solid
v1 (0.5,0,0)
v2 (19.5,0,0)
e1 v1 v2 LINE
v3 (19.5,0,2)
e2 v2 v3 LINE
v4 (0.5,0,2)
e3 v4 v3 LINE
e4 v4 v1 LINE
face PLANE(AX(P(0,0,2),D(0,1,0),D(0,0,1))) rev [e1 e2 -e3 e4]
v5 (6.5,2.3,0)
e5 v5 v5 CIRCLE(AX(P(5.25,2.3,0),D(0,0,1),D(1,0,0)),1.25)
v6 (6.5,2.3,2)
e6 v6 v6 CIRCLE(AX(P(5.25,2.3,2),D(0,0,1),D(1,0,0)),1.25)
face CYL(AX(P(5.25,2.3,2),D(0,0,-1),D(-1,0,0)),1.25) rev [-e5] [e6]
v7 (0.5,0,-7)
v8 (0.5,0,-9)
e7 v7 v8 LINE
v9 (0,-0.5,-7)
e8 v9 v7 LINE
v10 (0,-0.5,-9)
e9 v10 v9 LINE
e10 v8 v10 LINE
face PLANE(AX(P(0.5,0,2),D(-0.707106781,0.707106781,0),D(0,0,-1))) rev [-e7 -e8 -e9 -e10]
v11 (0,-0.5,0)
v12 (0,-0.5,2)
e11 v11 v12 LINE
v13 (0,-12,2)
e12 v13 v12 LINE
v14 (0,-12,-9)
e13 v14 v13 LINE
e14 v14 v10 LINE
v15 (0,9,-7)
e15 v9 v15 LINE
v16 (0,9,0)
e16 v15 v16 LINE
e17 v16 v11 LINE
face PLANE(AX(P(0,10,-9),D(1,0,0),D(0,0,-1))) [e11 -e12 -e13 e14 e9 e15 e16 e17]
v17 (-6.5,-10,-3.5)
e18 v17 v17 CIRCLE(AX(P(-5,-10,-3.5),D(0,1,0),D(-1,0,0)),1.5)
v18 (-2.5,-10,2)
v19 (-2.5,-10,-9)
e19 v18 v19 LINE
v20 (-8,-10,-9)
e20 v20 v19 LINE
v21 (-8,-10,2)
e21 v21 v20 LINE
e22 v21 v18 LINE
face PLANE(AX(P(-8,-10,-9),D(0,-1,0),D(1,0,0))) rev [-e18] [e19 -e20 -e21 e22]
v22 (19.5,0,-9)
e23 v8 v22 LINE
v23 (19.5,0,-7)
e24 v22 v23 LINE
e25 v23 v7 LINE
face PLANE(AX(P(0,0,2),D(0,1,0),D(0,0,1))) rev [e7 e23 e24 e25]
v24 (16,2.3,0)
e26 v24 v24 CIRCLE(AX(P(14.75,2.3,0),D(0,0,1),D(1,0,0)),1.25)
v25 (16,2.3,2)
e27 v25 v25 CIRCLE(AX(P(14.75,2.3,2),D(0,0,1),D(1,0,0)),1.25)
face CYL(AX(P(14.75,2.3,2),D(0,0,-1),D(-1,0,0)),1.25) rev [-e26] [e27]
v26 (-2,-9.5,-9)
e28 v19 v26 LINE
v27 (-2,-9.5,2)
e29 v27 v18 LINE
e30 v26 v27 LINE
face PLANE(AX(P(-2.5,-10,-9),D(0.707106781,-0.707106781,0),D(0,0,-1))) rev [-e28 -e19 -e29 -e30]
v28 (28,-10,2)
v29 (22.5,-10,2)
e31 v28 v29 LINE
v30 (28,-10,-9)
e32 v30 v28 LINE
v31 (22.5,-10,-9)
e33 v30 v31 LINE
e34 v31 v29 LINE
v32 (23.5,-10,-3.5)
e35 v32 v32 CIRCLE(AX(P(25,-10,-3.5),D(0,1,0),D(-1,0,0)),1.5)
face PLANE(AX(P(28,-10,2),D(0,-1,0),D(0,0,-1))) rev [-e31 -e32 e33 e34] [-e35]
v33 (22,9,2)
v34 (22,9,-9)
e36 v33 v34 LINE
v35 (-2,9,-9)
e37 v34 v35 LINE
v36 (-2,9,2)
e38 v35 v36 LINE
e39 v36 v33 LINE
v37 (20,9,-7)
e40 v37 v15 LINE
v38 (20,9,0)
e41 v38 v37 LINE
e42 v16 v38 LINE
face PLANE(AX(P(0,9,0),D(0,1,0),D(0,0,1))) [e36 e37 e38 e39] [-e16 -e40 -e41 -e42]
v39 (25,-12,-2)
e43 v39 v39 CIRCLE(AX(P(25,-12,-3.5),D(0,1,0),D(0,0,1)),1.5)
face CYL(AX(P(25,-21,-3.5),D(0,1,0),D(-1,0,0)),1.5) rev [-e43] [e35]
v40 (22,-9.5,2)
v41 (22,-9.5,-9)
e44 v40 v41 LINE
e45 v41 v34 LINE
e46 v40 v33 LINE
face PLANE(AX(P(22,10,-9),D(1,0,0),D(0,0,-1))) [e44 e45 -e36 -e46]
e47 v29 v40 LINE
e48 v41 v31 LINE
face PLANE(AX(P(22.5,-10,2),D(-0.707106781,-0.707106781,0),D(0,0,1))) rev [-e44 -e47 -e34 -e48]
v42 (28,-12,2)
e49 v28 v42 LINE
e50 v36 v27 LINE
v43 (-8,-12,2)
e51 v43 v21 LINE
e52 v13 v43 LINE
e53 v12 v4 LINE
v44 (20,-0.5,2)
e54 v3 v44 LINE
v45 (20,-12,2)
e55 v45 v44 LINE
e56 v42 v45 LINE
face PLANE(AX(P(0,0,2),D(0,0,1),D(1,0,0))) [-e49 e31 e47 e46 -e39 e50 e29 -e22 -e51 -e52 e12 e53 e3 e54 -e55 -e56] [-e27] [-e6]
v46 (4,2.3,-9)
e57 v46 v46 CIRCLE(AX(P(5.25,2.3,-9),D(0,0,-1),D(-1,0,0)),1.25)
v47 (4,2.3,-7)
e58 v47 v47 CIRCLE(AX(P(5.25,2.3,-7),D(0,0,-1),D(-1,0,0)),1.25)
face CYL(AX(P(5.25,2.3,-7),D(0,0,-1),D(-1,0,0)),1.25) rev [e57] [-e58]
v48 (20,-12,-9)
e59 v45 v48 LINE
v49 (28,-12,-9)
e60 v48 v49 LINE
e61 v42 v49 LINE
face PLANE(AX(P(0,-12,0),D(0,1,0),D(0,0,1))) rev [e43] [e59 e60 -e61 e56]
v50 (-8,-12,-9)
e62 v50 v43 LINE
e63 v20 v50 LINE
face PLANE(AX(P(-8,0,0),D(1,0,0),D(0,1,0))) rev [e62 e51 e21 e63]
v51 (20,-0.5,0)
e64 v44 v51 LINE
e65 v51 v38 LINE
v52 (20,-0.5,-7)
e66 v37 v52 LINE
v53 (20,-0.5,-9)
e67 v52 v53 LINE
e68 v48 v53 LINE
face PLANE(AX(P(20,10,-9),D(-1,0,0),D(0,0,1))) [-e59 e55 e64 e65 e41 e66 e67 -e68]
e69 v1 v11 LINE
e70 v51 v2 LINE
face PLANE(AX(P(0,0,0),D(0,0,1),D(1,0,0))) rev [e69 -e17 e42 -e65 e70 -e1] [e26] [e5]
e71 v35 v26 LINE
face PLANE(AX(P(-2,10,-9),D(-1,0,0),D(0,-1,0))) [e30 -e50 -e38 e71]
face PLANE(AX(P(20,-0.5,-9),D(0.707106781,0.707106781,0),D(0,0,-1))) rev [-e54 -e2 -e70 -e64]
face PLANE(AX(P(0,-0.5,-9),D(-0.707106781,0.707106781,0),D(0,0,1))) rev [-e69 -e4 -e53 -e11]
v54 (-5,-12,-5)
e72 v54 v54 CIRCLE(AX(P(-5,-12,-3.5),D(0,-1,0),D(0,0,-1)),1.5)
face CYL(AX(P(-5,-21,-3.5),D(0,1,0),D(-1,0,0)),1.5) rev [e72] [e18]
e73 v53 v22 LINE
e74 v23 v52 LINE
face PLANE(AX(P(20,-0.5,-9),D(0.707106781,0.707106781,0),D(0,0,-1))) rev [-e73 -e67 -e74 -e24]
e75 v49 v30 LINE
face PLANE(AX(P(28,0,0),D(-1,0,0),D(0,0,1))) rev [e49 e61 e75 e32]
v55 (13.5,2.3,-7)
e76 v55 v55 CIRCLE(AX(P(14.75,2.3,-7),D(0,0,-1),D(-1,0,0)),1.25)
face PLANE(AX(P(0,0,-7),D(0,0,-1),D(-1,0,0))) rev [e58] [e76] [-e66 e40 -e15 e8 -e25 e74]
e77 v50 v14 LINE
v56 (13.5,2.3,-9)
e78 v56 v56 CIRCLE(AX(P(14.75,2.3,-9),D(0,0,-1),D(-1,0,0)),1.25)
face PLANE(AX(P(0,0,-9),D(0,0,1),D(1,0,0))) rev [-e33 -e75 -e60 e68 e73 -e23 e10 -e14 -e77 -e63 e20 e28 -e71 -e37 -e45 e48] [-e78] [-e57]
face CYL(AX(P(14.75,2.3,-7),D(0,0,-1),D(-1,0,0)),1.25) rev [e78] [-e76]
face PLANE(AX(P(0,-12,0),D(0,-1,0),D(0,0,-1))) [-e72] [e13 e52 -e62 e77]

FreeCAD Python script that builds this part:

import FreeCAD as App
import Part
import Sketcher

V = App.Vector


def edges_at(feature, points):
    """Names of the edges that pass closest to the given points."""
    edges = feature.Shape.Edges
    near = lambda p: min(range(len(edges)), key=lambda i: edges[i].distToShape(Part.Vertex(*p))[0])
    return sorted({f"Edge{near(p) + 1}" for p in points})

doc = App.newDocument("Part")
params = doc.addObject("Spreadsheet::Sheet", "Params")
for row, (alias, value) in enumerate([
    ("sketch1_diameter", "2.5 mm"),
    ("sketch1_width", "20 mm"),
    ("sketch1_height", "10 mm"),
    ("pad1_length", "2 mm"),
    ("sketch2_width", "2 mm"),
    ("sketch2_height", "10 mm"),
    ("pad2_length", "11 mm"),
    ("sketch3_diameter", "2.5 mm"),
    ("sketch3_width", "20 mm"),
    ("sketch3_height", "10 mm"),
    ("pad3_length", "2 mm"),
    ("sketch4_width", "2 mm"),
    ("sketch4_height", "11 mm"),
    ("pad4_length", "12 mm"),
    ("sketch5_width", "2 mm"),
    ("sketch5_height", "11 mm"),
    ("pad5_length", "6 mm"),
    ("sketch6_width", "2 mm"),
    ("sketch6_height", "11 mm"),
    ("pad6_length", "6 mm"),
    ("sketch7_width", "24 mm"),
    ("sketch7_width2", "20 mm"),
    ("sketch7_height", "11 mm"),
    ("sketch7_height2", "7 mm"),
    ("pocket1_length", "1 mm"),
    ("sketch8_diameter", "3 mm"),
    ("pocket2_length", "11 mm"),
    ("chamfer_size", "0.5 mm"),
], start=1):
    params.set(f"A{row}", alias)
    params.set(f"B{row}", "=" + value)
    params.setAlias(f"B{row}", alias)

body = doc.addObject("PartDesign::Body", "Body")

sketch1 = body.newObject("Sketcher::SketchObject", "Sketch")
sketch1.AttachmentSupport = (doc.getObject("XY_Plane"), [""])
sketch1.MapMode = "FlatFace"
sketch1.addGeometry([
    Part.LineSegment(V(0, 10, 0), V(0, 0, 0)),
    Part.LineSegment(V(0, 0, 0), V(20, 0, 0)),
    Part.LineSegment(V(20, 0, 0), V(20, 10, 0)),
    Part.LineSegment(V(20, 10, 0), V(0, 10, 0)),
    Part.Circle(V(5.2, 2.3, 0), V(0, 0, 1), 1.2),
    Part.Circle(V(14.8, 2.3, 0), V(0, 0, 1), 1.2),
], False)
sketch1.addConstraint([
    Sketcher.Constraint("Coincident", 0, 2, 1, 1),
    Sketcher.Constraint("Coincident", 1, 2, 2, 1),
    Sketcher.Constraint("Coincident", 2, 2, 3, 1),
    Sketcher.Constraint("Coincident", 3, 2, 0, 1),
    Sketcher.Constraint("Vertical", 0),
    Sketcher.Constraint("Horizontal", 1),
    Sketcher.Constraint("Vertical", 2),
    Sketcher.Constraint("Horizontal", 3),
    Sketcher.Constraint("Coincident", 0, 2, -1, 1),
    Sketcher.Constraint("Equal", 4, 5),
    Sketcher.Constraint("Horizontal", 4, 3, 5, 3),
    Sketcher.Constraint("Diameter", 4, 2.5),
    Sketcher.Constraint("DistanceX", 1, 1, 1, 2, 20.0),
    Sketcher.Constraint("DistanceY", 0, 2, 0, 1, 10.0),
    Sketcher.Constraint("DistanceY", -1, 1, 4, 3, 2.3),
    Sketcher.Constraint("DistanceX", 4, 3, 5, 3, 9.5),
    Sketcher.Constraint("DistanceX", -1, 1, 4, 3, 5.25),
])
sketch1.setExpression("Constraints[11]", "Params.sketch1_diameter")
sketch1.setExpression("Constraints[12]", "Params.sketch1_width")
sketch1.setExpression("Constraints[13]", "Params.sketch1_height")
pad1 = body.newObject("PartDesign::Pad", "Pad")
pad1.Profile = sketch1
pad1.setExpression("Length", "Params.pad1_length")

sketch2 = body.newObject("Sketcher::SketchObject", "Sketch001")
sketch2.AttachmentSupport = (doc.getObject("XY_Plane"), [""])
sketch2.MapMode = "FlatFace"
sketch2.AttachmentOffset = App.Placement(V(0, 0, 2), App.Rotation())
sketch2.addGeometry([
    Part.LineSegment(V(-2, 10, 0), V(-2, 0, 0)),
    Part.LineSegment(V(-2, 0, 0), V(0, 0, 0)),
    Part.LineSegment(V(0, 0, 0), V(0, 10, 0)),
    Part.LineSegment(V(0, 10, 0), V(-2, 10, 0)),
    Part.LineSegment(V(20, 10, 0), V(20, 0, 0)),
    Part.LineSegment(V(20, 0, 0), V(22, 0, 0)),
    Part.LineSegment(V(22, 0, 0), V(22, 10, 0)),
    Part.LineSegment(V(22, 10, 0), V(20, 10, 0)),
], False)
sketch2.addConstraint([
    Sketcher.Constraint("Coincident", 0, 2, 1, 1),
    Sketcher.Constraint("Coincident", 1, 2, 2, 1),
    Sketcher.Constraint("Coincident", 2, 2, 3, 1),
    Sketcher.Constraint("Coincident", 3, 2, 0, 1),
    Sketcher.Constraint("Coincident", 4, 2, 5, 1),
    Sketcher.Constraint("Coincident", 5, 2, 6, 1),
    Sketcher.Constraint("Coincident", 6, 2, 7, 1),
    Sketcher.Constraint("Coincident", 7, 2, 4, 1),
    Sketcher.Constraint("Vertical", 0),
    Sketcher.Constraint("Horizontal", 1),
    Sketcher.Constraint("Vertical", 2),
    Sketcher.Constraint("Horizontal", 3),
    Sketcher.Constraint("Vertical", 4),
    Sketcher.Constraint("Horizontal", 5),
    Sketcher.Constraint("Vertical", 6),
    Sketcher.Constraint("Horizontal", 7),
    Sketcher.Constraint("Coincident", 1, 2, -1, 1),
    Sketcher.Constraint("PointOnObject", 4, 2, -1),
    Sketcher.Constraint("Horizontal", 3, 2, 6, 2),
    Sketcher.Constraint("Equal", 3, 5),
    Sketcher.Constraint("DistanceX", 1, 1, 1, 2, 2.0),
    Sketcher.Constraint("DistanceY", 0, 2, 0, 1, 10.0),
    Sketcher.Constraint("DistanceX", -1, 1, 4, 2, 20.0),
])
sketch2.setExpression("Constraints[20]", "Params.sketch2_width")
sketch2.setExpression("Constraints[21]", "Params.sketch2_height")
pad2 = body.newObject("PartDesign::Pad", "Pad001")
pad2.Profile = sketch2
pad2.setExpression("Length", "Params.pad2_length")
pad2.Reversed = True
body2 = doc.addObject("PartDesign::Body", "Body001")

sketch3 = body2.newObject("Sketcher::SketchObject", "Sketch002")
sketch3.AttachmentSupport = (doc.getObject("XY_Plane001"), [""])
sketch3.MapMode = "FlatFace"
sketch3.AttachmentOffset = App.Placement(V(0, 0, -9), App.Rotation())
sketch3.addGeometry([
    Part.LineSegment(V(20, 10, 0), V(20, 0, 0)),
    Part.LineSegment(V(20, 0, 0), V(0, 0, 0)),
    Part.LineSegment(V(0, 0, 0), V(0, 10, 0)),
    Part.LineSegment(V(0, 10, 0), V(20, 10, 0)),
    Part.Circle(V(14.8, 2.3, 0), V(0, 0, 1), 1.2),
    Part.Circle(V(5.2, 2.3, 0), V(0, 0, 1), 1.2),
], False)
sketch3.addConstraint([
    Sketcher.Constraint("Coincident", 0, 2, 1, 1),
    Sketcher.Constraint("Coincident", 1, 2, 2, 1),
    Sketcher.Constraint("Coincident", 2, 2, 3, 1),
    Sketcher.Constraint("Coincident", 3, 2, 0, 1),
    Sketcher.Constraint("Vertical", 0),
    Sketcher.Constraint("Horizontal", 1),
    Sketcher.Constraint("Vertical", 2),
    Sketcher.Constraint("Horizontal", 3),
    Sketcher.Constraint("Coincident", 1, 2, -1, 1),
    Sketcher.Constraint("Equal", 4, 5),
    Sketcher.Constraint("Horizontal", 4, 3, 5, 3),
    Sketcher.Constraint("Diameter", 4, 2.5),
    Sketcher.Constraint("DistanceX", 1, 2, 1, 1, 20.0),
    Sketcher.Constraint("DistanceY", 0, 2, 0, 1, 10.0),
    Sketcher.Constraint("DistanceY", -1, 1, 4, 3, 2.3),
    Sketcher.Constraint("DistanceX", 5, 3, 4, 3, 9.5),
    Sketcher.Constraint("DistanceX", -1, 1, 4, 3, 14.75),
])
sketch3.setExpression("Constraints[11]", "Params.sketch3_diameter")
sketch3.setExpression("Constraints[12]", "Params.sketch3_width")
sketch3.setExpression("Constraints[13]", "Params.sketch3_height")
pad3 = body2.newObject("PartDesign::Pad", "Pad002")
pad3.Profile = sketch3
pad3.setExpression("Length", "Params.pad3_length")
doc.recompute()

boolean = body.newObject("PartDesign::Boolean", "Boolean")
boolean.Type = "Fuse"
boolean.addObjects([body2])

sketch4 = body.newObject("Sketcher::SketchObject", "Sketch003")
sketch4.AttachmentSupport = (doc.getObject("XZ_Plane"), [""])
sketch4.MapMode = "FlatFace"
sketch4.addGeometry([
    Part.LineSegment(V(-2, 2, 0), V(-2, -9, 0)),
    Part.LineSegment(V(-2, -9, 0), V(0, -9, 0)),
    Part.LineSegment(V(0, -9, 0), V(0, 2, 0)),
    Part.LineSegment(V(0, 2, 0), V(-2, 2, 0)),
    Part.LineSegment(V(20, 2, 0), V(20, -9, 0)),
    Part.LineSegment(V(20, -9, 0), V(22, -9, 0)),
    Part.LineSegment(V(22, -9, 0), V(22, 2, 0)),
    Part.LineSegment(V(22, 2, 0), V(20, 2, 0)),
], False)
sketch4.addConstraint([
    Sketcher.Constraint("Coincident", 0, 2, 1, 1),
    Sketcher.Constraint("Coincident", 1, 2, 2, 1),
    Sketcher.Constraint("Coincident", 2, 2, 3, 1),
    Sketcher.Constraint("Coincident", 3, 2, 0, 1),
    Sketcher.Constraint("Coincident", 4, 2, 5, 1),
    Sketcher.Constraint("Coincident", 5, 2, 6, 1),
    Sketcher.Constraint("Coincident", 6, 2, 7, 1),
    Sketcher.Constraint("Coincident", 7, 2, 4, 1),
    Sketcher.Constraint("Vertical", 0),
    Sketcher.Constraint("Horizontal", 1),
    Sketcher.Constraint("Vertical", 2),
    Sketcher.Constraint("Horizontal", 3),
    Sketcher.Constraint("Vertical", 4),
    Sketcher.Constraint("Horizontal", 5),
    Sketcher.Constraint("Vertical", 6),
    Sketcher.Constraint("Horizontal", 7),
    Sketcher.Constraint("PointOnObject", 1, 2, -2),
    Sketcher.Constraint("Horizontal", 1, 2, 4, 2),
    Sketcher.Constraint("Horizontal", 3, 2, 6, 2),
    Sketcher.Constraint("Equal", 3, 5),
    Sketcher.Constraint("DistanceX", 1, 1, 1, 2, 2.0),
    Sketcher.Constraint("DistanceY", 0, 2, 0, 1, 11.0),
    Sketcher.Constraint("DistanceY", 0, 2, -1, 1, 9.0),
    Sketcher.Constraint("DistanceX", -1, 1, 4, 2, 20.0),
])
sketch4.setExpression("Constraints[20]", "Params.sketch4_width")
sketch4.setExpression("Constraints[21]", "Params.sketch4_height")
pad4 = body.newObject("PartDesign::Pad", "Pad003")
pad4.Profile = sketch4
pad4.setExpression("Length", "Params.pad4_length")

sketch5 = body.newObject("Sketcher::SketchObject", "Sketch004")
sketch5.AttachmentSupport = (doc.getObject("YZ_Plane"), [""])
sketch5.MapMode = "FlatFace"
sketch5.AttachmentOffset = App.Placement(V(0, 0, 22), App.Rotation())
sketch5.addGeometry([
    Part.LineSegment(V(-10, 2, 0), V(-12, 2, 0)),
    Part.LineSegment(V(-12, 2, 0), V(-12, -9, 0)),
    Part.LineSegment(V(-12, -9, 0), V(-10, -9, 0)),
    Part.LineSegment(V(-10, -9, 0), V(-10, 2, 0)),
], False)
sketch5.addConstraint([
    Sketcher.Constraint("Coincident", 0, 2, 1, 1),
    Sketcher.Constraint("Coincident", 1, 2, 2, 1),
    Sketcher.Constraint("Coincident", 2, 2, 3, 1),
    Sketcher.Constraint("Coincident", 3, 2, 0, 1),
    Sketcher.Constraint("Horizontal", 0),
    Sketcher.Constraint("Vertical", 1),
    Sketcher.Constraint("Horizontal", 2),
    Sketcher.Constraint("Vertical", 3),
    Sketcher.Constraint("DistanceX", 0, 2, 0, 1, 2.0),
    Sketcher.Constraint("DistanceY", 1, 2, 1, 1, 11.0),
    Sketcher.Constraint("DistanceX", 0, 2, -1, 1, 12.0),
    Sketcher.Constraint("DistanceY", -1, 1, 0, 2, 2.0),
])
sketch5.setExpression("Constraints[8]", "Params.sketch5_width")
sketch5.setExpression("Constraints[9]", "Params.sketch5_height")
pad5 = body.newObject("PartDesign::Pad", "Pad004")
pad5.Profile = sketch5
pad5.setExpression("Length", "Params.pad5_length")

sketch6 = body.newObject("Sketcher::SketchObject", "Sketch005")
sketch6.AttachmentSupport = (doc.getObject("YZ_Plane"), [""])
sketch6.MapMode = "FlatFace"
sketch6.AttachmentOffset = App.Placement(V(0, 0, -2), App.Rotation())
sketch6.addGeometry([
    Part.LineSegment(V(-10, -9, 0), V(-12, -9, 0)),
    Part.LineSegment(V(-12, -9, 0), V(-12, 2, 0)),
    Part.LineSegment(V(-12, 2, 0), V(-10, 2, 0)),
    Part.LineSegment(V(-10, 2, 0), V(-10, -9, 0)),
], False)
sketch6.addConstraint([
    Sketcher.Constraint("Coincident", 0, 2, 1, 1),
    Sketcher.Constraint("Coincident", 1, 2, 2, 1),
    Sketcher.Constraint("Coincident", 2, 2, 3, 1),
    Sketcher.Constraint("Coincident", 3, 2, 0, 1),
    Sketcher.Constraint("Horizontal", 0),
    Sketcher.Constraint("Vertical", 1),
    Sketcher.Constraint("Horizontal", 2),
    Sketcher.Constraint("Vertical", 3),
    Sketcher.Constraint("DistanceX", 0, 2, 0, 1, 2.0),
    Sketcher.Constraint("DistanceY", 1, 1, 1, 2, 11.0),
    Sketcher.Constraint("DistanceX", 0, 2, -1, 1, 12.0),
    Sketcher.Constraint("DistanceY", 0, 2, -1, 1, 9.0),
])
sketch6.setExpression("Constraints[8]", "Params.sketch6_width")
sketch6.setExpression("Constraints[9]", "Params.sketch6_height")
pad6 = body.newObject("PartDesign::Pad", "Pad005")
pad6.Profile = sketch6
pad6.setExpression("Length", "Params.pad6_length")
pad6.Reversed = True

sketch7 = body.newObject("Sketcher::SketchObject", "Sketch006")
sketch7.AttachmentSupport = (doc.getObject("XZ_Plane"), [""])
sketch7.MapMode = "FlatFace"
sketch7.AttachmentOffset = App.Placement(V(0, 0, -10), App.Rotation())
sketch7.addGeometry([
    Part.LineSegment(V(-2, -9, 0), V(-2, 2, 0)),
    Part.LineSegment(V(-2, 2, 0), V(22, 2, 0)),
    Part.LineSegment(V(22, 2, 0), V(22, -9, 0)),
    Part.LineSegment(V(22, -9, 0), V(-2, -9, 0)),
    Part.LineSegment(V(20, 0, 0), V(0, 0, 0)),
    Part.LineSegment(V(0, 0, 0), V(0, -7, 0)),
    Part.LineSegment(V(0, -7, 0), V(20, -7, 0)),
    Part.LineSegment(V(20, -7, 0), V(20, 0, 0)),
], False)
sketch7.addConstraint([
    Sketcher.Constraint("Coincident", 0, 2, 1, 1),
    Sketcher.Constraint("Coincident", 1, 2, 2, 1),
    Sketcher.Constraint("Coincident", 2, 2, 3, 1),
    Sketcher.Constraint("Coincident", 3, 2, 0, 1),
    Sketcher.Constraint("Coincident", 4, 2, 5, 1),
    Sketcher.Constraint("Coincident", 5, 2, 6, 1),
    Sketcher.Constraint("Coincident", 6, 2, 7, 1),
    Sketcher.Constraint("Coincident", 7, 2, 4, 1),
    Sketcher.Constraint("Vertical", 0),
    Sketcher.Constraint("Horizontal", 1),
    Sketcher.Constraint("Vertical", 2),
    Sketcher.Constraint("Horizontal", 3),
    Sketcher.Constraint("Horizontal", 4),
    Sketcher.Constraint("Vertical", 5),
    Sketcher.Constraint("Horizontal", 6),
    Sketcher.Constraint("Vertical", 7),
    Sketcher.Constraint("Coincident", 4, 2, -1, 1),
    Sketcher.Constraint("DistanceX", 1, 1, 1, 2, 24.0),
    Sketcher.Constraint("DistanceX", 4, 2, 4, 1, 20.0),
    Sketcher.Constraint("DistanceY", 0, 1, 0, 2, 11.0),
    Sketcher.Constraint("DistanceY", 5, 2, 5, 1, 7.0),
    Sketcher.Constraint("DistanceX", 0, 2, -1, 1, 2.0),
    Sketcher.Constraint("DistanceY", -1, 1, 0, 2, 2.0),
])
sketch7.setExpression("Constraints[17]", "Params.sketch7_width")
sketch7.setExpression("Constraints[18]", "Params.sketch7_width2")
sketch7.setExpression("Constraints[19]", "Params.sketch7_height")
sketch7.setExpression("Constraints[20]", "Params.sketch7_height2")
pocket1 = body.newObject("PartDesign::Pocket", "Pocket")
pocket1.Profile = sketch7
pocket1.setExpression("Length", "Params.pocket1_length")
pocket1.Reversed = True

sketch8 = body.newObject("Sketcher::SketchObject", "Sketch007")
sketch8.AttachmentSupport = (doc.getObject("XZ_Plane"), [""])
sketch8.MapMode = "FlatFace"
sketch8.AttachmentOffset = App.Placement(V(0, 0, 10), App.Rotation())
sketch8.addGeometry([
    Part.Circle(V(-5, -3.5, 0), V(0, 0, 1), 1.5),
    Part.Circle(V(25, -3.5, 0), V(0, 0, 1), 1.5),
], False)
sketch8.addConstraint([
    Sketcher.Constraint("Equal", 0, 1),
    Sketcher.Constraint("Horizontal", 0, 3, 1, 3),
    Sketcher.Constraint("Diameter", 0, 3.0),
    Sketcher.Constraint("DistanceX", 0, 3, -1, 1, 5.0),
    Sketcher.Constraint("DistanceX", -1, 1, 1, 3, 25.0),
    Sketcher.Constraint("DistanceY", 0, 3, -1, 1, 3.5),
])
sketch8.setExpression("Constraints[2]", "Params.sketch8_diameter")
pocket2 = body.newObject("PartDesign::Pocket", "Pocket001")
pocket2.Profile = sketch8
pocket2.setExpression("Length", "Params.pocket2_length")
pocket2.Reversed = True
doc.recompute()

chamfer = body.newObject("PartDesign::Chamfer", "Chamfer")
chamfer.Base = (pocket2, edges_at(pocket2, [
    (-2, -10, -3.5),
    (0, 0, 1),
    (0, 0, -8),
    (20, 0, 1),
    (20, 0, -8),
    (22, -10, -3.5),
]))
chamfer.setExpression("Size", "Params.chamfer_size")

doc.recompute()
